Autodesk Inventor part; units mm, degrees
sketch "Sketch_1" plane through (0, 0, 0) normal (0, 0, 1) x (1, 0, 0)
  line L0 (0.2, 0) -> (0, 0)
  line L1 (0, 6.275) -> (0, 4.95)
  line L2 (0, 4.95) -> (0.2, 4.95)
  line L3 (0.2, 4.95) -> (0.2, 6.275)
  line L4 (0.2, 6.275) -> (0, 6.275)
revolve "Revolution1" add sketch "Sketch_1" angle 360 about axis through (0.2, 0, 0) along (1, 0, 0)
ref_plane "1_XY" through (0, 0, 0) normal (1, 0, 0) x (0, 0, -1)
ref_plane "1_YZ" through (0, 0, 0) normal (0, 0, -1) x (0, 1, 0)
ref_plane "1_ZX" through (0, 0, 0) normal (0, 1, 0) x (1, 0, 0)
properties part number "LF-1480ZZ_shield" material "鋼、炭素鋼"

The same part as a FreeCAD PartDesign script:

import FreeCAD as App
import Part
import Sketcher

V = App.Vector
Q = App.Units.Quantity

doc = App.newDocument("Part")
body = doc.addObject("PartDesign::Body", "Body")

# Sketch on XY plane
sketch1 = doc.addObject("Sketcher::SketchObject", "Sketch")
body.addObject(sketch1)
sketch1.AttachmentSupport = (doc.XY_Plane, [""])
sketch1.MapMode = "FlatFace"
sketch1.addGeometry(Part.LineSegment(V(0.2, 6.28, 0), V(0, 6.28, 0)), False)
sketch1.addGeometry(Part.LineSegment(V(0, 6.28, 0), V(0, 4.95, 0)), False)
sketch1.addGeometry(Part.LineSegment(V(0, 4.95, 0), V(0.2, 4.95, 0)), False)
sketch1.addGeometry(Part.LineSegment(V(0.2, 4.95, 0), V(0.2, 6.28, 0)), False)
sketch1.addConstraint(Sketcher.Constraint("Coincident", 0, 2, 1, 1))
sketch1.addConstraint(Sketcher.Constraint("Coincident", 1, 2, 2, 1))
sketch1.addConstraint(Sketcher.Constraint("Coincident", 2, 2, 3, 1))
sketch1.addConstraint(Sketcher.Constraint("Coincident", 3, 2, 0, 1))
sketch1.addConstraint(Sketcher.Constraint("Horizontal", 0))
sketch1.addConstraint(Sketcher.Constraint("Vertical", 1))
sketch1.addConstraint(Sketcher.Constraint("Horizontal", 2))
sketch1.addConstraint(Sketcher.Constraint("Vertical", 3))
sketch1.addConstraint(Sketcher.Constraint("PointOnObject", 0, 2, -2))
sketch1.addConstraint(Sketcher.Constraint("DistanceX", 0, 2, 0, 1, Q("0.2 mm")))
sketch1.addConstraint(Sketcher.Constraint("DistanceY", 1, 2, 1, 1, Q("1.325 mm")))
sketch1.addConstraint(Sketcher.Constraint("DistanceY", -1, 1, 1, 2, Q("4.95 mm")))
revolution = doc.addObject("PartDesign::Revolution", "Revolution")
body.addObject(revolution)
revolution.Profile = sketch1
revolution.ReferenceAxis = (sketch1, ["H_Axis"])
revolution.Angle = 360

doc.recompute()
